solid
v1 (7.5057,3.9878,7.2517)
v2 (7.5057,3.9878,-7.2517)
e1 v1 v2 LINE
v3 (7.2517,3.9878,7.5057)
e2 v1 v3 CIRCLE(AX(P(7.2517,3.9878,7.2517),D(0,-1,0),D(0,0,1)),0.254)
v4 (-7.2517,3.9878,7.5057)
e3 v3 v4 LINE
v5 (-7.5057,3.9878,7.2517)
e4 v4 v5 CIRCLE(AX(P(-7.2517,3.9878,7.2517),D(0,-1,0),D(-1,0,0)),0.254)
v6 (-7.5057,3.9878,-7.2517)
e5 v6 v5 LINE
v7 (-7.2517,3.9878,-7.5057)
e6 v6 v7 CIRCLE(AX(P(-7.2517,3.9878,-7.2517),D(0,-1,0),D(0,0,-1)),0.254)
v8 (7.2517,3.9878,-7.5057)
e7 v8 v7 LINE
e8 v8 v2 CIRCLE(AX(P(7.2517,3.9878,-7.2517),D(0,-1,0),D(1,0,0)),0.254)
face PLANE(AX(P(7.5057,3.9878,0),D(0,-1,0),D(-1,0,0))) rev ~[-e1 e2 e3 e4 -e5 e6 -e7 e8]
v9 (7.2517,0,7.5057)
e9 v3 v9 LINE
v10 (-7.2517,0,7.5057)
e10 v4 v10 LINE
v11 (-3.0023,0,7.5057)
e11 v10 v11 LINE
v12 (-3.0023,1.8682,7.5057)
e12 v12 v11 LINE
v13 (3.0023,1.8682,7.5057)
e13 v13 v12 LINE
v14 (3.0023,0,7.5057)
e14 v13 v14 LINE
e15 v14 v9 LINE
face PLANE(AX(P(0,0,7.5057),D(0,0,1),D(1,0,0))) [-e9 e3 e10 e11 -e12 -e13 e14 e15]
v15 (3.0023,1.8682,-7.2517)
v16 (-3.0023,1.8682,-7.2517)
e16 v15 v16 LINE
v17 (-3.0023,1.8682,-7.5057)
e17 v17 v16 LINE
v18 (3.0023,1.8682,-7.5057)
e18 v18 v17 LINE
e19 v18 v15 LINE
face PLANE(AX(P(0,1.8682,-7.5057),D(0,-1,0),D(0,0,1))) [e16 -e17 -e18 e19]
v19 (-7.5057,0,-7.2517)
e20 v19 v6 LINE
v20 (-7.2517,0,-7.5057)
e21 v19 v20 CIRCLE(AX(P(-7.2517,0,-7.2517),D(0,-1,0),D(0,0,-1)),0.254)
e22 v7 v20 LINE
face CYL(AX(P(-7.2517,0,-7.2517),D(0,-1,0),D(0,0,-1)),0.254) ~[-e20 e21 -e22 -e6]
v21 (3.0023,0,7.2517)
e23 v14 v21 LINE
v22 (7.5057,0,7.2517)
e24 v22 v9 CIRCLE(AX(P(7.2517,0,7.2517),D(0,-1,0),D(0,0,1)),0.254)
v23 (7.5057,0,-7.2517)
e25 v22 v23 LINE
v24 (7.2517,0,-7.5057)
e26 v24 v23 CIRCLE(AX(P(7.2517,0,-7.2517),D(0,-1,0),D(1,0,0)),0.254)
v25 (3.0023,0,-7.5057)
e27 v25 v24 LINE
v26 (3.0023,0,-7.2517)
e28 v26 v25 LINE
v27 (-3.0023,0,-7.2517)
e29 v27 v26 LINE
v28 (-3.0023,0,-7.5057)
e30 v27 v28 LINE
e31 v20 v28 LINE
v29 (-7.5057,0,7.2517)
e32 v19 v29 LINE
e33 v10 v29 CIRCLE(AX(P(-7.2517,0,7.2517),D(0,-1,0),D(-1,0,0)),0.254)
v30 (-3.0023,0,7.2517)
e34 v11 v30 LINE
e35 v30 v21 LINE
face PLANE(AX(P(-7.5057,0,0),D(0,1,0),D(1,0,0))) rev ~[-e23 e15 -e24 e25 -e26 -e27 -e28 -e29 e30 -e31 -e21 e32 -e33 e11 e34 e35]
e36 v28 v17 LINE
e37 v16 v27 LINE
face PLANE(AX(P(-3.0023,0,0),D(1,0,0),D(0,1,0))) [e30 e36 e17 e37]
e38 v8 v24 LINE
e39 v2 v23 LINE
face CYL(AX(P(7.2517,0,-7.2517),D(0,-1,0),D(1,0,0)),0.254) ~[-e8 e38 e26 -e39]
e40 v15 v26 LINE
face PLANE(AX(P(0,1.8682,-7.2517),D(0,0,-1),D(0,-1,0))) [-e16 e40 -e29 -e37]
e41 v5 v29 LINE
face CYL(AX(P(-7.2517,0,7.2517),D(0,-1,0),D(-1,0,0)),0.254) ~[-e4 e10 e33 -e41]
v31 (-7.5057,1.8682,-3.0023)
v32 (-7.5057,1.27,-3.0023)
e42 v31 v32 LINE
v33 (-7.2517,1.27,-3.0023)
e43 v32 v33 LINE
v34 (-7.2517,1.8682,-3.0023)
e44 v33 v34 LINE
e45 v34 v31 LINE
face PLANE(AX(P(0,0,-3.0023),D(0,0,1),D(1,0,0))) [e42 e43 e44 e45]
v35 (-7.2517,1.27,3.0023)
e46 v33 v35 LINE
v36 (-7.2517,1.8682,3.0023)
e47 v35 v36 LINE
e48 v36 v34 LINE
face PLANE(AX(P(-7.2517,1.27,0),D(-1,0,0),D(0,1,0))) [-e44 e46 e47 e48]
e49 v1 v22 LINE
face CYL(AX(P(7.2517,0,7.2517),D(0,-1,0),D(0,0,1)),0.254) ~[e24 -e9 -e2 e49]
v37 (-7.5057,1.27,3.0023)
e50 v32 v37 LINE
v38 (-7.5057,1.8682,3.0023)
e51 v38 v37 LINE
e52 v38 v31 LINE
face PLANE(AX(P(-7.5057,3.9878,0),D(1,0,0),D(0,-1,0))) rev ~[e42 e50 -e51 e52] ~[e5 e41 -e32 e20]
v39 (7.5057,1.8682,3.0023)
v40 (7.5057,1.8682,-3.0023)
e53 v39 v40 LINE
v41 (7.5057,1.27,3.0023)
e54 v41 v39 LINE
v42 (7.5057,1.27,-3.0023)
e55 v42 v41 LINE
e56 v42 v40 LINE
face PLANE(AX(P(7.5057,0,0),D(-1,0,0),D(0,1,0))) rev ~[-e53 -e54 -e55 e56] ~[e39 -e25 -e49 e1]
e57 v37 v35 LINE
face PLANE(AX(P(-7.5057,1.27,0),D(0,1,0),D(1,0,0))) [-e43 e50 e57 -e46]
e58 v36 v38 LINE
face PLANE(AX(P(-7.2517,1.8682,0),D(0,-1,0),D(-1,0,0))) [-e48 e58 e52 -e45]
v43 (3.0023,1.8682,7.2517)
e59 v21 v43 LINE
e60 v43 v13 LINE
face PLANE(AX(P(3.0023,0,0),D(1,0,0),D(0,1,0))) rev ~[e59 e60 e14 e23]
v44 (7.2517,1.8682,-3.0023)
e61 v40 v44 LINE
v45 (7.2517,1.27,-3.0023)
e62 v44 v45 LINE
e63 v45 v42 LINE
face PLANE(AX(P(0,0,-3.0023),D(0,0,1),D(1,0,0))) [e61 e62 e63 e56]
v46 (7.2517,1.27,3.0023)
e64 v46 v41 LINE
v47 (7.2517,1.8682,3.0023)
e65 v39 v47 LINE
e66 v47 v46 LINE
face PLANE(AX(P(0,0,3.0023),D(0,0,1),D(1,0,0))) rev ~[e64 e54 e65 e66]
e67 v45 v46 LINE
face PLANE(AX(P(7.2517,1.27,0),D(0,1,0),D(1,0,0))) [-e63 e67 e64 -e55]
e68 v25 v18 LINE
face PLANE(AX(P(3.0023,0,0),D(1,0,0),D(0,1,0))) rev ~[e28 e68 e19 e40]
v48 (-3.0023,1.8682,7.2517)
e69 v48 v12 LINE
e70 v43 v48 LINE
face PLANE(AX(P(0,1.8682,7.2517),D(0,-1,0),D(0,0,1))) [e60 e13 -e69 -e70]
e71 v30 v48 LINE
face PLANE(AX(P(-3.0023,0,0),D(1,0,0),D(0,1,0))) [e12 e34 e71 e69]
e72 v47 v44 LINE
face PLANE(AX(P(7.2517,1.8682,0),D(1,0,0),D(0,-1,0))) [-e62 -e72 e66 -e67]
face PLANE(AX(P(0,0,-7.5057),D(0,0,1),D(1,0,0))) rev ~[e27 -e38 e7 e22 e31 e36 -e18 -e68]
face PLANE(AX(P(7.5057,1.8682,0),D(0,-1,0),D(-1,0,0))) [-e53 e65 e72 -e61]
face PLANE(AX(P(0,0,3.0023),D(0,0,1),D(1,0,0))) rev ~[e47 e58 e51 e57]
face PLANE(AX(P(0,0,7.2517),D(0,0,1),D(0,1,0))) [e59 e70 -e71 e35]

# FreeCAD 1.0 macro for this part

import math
import FreeCAD as App
import Part
import Sketcher
Q = App.Units.Quantity

doc = App.newDocument("Part")
body = doc.addObject("PartDesign::Body", "Body")

# Sketch on XY plane
sketch1 = doc.addObject("Sketcher::SketchObject", "Sketch")
body.addObject(sketch1)
sketch1.AttachmentSupport = (doc.XY_Plane, [""])
sketch1.MapMode = "FlatFace"
sketch1.addGeometry([
    Part.LineSegment(App.Vector(7.5, 4, 0), App.Vector(-7.5, 4, 0)),
    Part.LineSegment(App.Vector(-7.5, 4, 0), App.Vector(-7.5, 0, 0)),
    Part.LineSegment(App.Vector(-7.5, 0, 0), App.Vector(7.5, 0, 0)),
    Part.LineSegment(App.Vector(7.5, 0, 0), App.Vector(7.5, 4, 0)),
], False)
sketch1.addConstraint([
    Sketcher.Constraint("Coincident", 0, 2, 1, 1),
    Sketcher.Constraint("Coincident", 1, 2, 2, 1),
    Sketcher.Constraint("Coincident", 2, 2, 3, 1),
    Sketcher.Constraint("Coincident", 3, 2, 0, 1),
    Sketcher.Constraint("Horizontal", 0),
    Sketcher.Constraint("Vertical", 1),
    Sketcher.Constraint("Horizontal", 2),
    Sketcher.Constraint("Vertical", 3),
    Sketcher.Constraint("Symmetric", 1, 2, 2, 2, -1, 1),
    Sketcher.Constraint("DistanceX", 0, 2, 0, 1, Q("0.591 in")),
    Sketcher.Constraint("DistanceY", 1, 2, 1, 1, Q("0.157 in")),
])
pad1 = doc.addObject("PartDesign::Pad", "Pad")
body.addObject(pad1)
pad1.Profile = sketch1
pad1.Length = Q("0.591 in")
pad1.Midplane = True

# Sketch on XY plane
sketch2 = doc.addObject("Sketcher::SketchObject", "Sketch001")
body.addObject(sketch2)
sketch2.AttachmentSupport = (doc.XY_Plane, [""])
sketch2.MapMode = "FlatFace"
sketch2.addGeometry([
    Part.LineSegment(App.Vector(-7.51, 1.87, 0), App.Vector(-7.51, 1.27, 0)),
    Part.LineSegment(App.Vector(-7.51, 1.27, 0), App.Vector(-7.25, 1.27, 0)),
    Part.LineSegment(App.Vector(-7.25, 1.27, 0), App.Vector(-7.25, 1.87, 0)),
    Part.LineSegment(App.Vector(-7.25, 1.87, 0), App.Vector(-7.51, 1.87, 0)),
], False)
sketch2.addConstraint([
    Sketcher.Constraint("Coincident", 0, 2, 1, 1),
    Sketcher.Constraint("Coincident", 1, 2, 2, 1),
    Sketcher.Constraint("Coincident", 2, 2, 3, 1),
    Sketcher.Constraint("Coincident", 3, 2, 0, 1),
    Sketcher.Constraint("Vertical", 0),
    Sketcher.Constraint("Horizontal", 1),
    Sketcher.Constraint("Vertical", 2),
    Sketcher.Constraint("Horizontal", 3),
    Sketcher.Constraint("DistanceX", 1, 1, 1, 2, Q("0.01 in")),
    Sketcher.Constraint("DistanceY", -1, 1, 0, 2, Q("0.05 in")),
    Sketcher.Constraint("DistanceY", 0, 2, 0, 1, Q("0.5982 mm")),
    Sketcher.Constraint("DistanceX", 0, 2, -1, 1, Q("0.2955 in")),
])
pocket1 = doc.addObject("PartDesign::Pocket", "Pocket")
body.addObject(pocket1)
pocket1.Profile = sketch2
pocket1.Length = Q("0.2364016 in")
pocket1.Midplane = True

# Sketch on XY plane
sketch3 = doc.addObject("Sketcher::SketchObject", "Sketch002")
body.addObject(sketch3)
sketch3.AttachmentSupport = (doc.XY_Plane, [""])
sketch3.MapMode = "FlatFace"
sketch3.addGeometry([
    Part.LineSegment(App.Vector(7.25, 1.87, 0), App.Vector(7.25, 1.27, 0)),
    Part.LineSegment(App.Vector(7.25, 1.27, 0), App.Vector(7.51, 1.27, 0)),
    Part.LineSegment(App.Vector(7.51, 1.27, 0), App.Vector(7.51, 1.87, 0)),
    Part.LineSegment(App.Vector(7.51, 1.87, 0), App.Vector(7.25, 1.87, 0)),
], False)
sketch3.addConstraint([
    Sketcher.Constraint("Coincident", 0, 2, 1, 1),
    Sketcher.Constraint("Coincident", 1, 2, 2, 1),
    Sketcher.Constraint("Coincident", 2, 2, 3, 1),
    Sketcher.Constraint("Coincident", 3, 2, 0, 1),
    Sketcher.Constraint("Vertical", 0),
    Sketcher.Constraint("Horizontal", 1),
    Sketcher.Constraint("Vertical", 2),
    Sketcher.Constraint("Horizontal", 3),
    Sketcher.Constraint("DistanceX", 1, 1, 1, 2, Q("0.01 in")),
    Sketcher.Constraint("DistanceY", -1, 1, 0, 2, Q("0.05 in")),
    Sketcher.Constraint("DistanceY", 0, 2, 0, 1, Q("0.5982 mm")),
    Sketcher.Constraint("DistanceX", -1, 1, 0, 2, Q("0.2855 in")),
])
pocket2 = doc.addObject("PartDesign::Pocket", "Pocket001")
body.addObject(pocket2)
pocket2.Profile = sketch3
pocket2.Length = Q("0.2364016 in")
pocket2.Midplane = True

# Sketch on YZ plane
sketch4 = doc.addObject("Sketcher::SketchObject", "Sketch003")
body.addObject(sketch4)
sketch4.AttachmentSupport = (doc.YZ_Plane, [""])
sketch4.MapMode = "FlatFace"
sketch4.addGeometry([
    Part.LineSegment(App.Vector(1.87, 7.51, 0), App.Vector(0, 7.51, 0)),
    Part.LineSegment(App.Vector(0, 7.51, 0), App.Vector(0, 7.25, 0)),
    Part.LineSegment(App.Vector(0, 7.25, 0), App.Vector(1.87, 7.25, 0)),
    Part.LineSegment(App.Vector(1.87, 7.25, 0), App.Vector(1.87, 7.51, 0)),
], False)
sketch4.addConstraint([
    Sketcher.Constraint("Coincident", 0, 2, 1, 1),
    Sketcher.Constraint("Coincident", 1, 2, 2, 1),
    Sketcher.Constraint("Coincident", 2, 2, 3, 1),
    Sketcher.Constraint("Coincident", 3, 2, 0, 1),
    Sketcher.Constraint("Horizontal", 0),
    Sketcher.Constraint("Vertical", 1),
    Sketcher.Constraint("Horizontal", 2),
    Sketcher.Constraint("Vertical", 3),
    Sketcher.Constraint("PointOnObject", 0, 2, -2),
    Sketcher.Constraint("DistanceY", 1, 2, 1, 1, Q("0.01 in")),
    Sketcher.Constraint("DistanceX", 0, 2, 0, 1, Q("1.8682 mm")),
    Sketcher.Constraint("DistanceY", -1, 1, 0, 2, Q("0.2955 in")),
])
pocket3 = doc.addObject("PartDesign::Pocket", "Pocket002")
body.addObject(pocket3)
pocket3.Profile = sketch4
pocket3.Length = Q("0.2364016 in")
pocket3.Midplane = True

# Sketch on YZ plane
sketch5 = doc.addObject("Sketcher::SketchObject", "Sketch004")
body.addObject(sketch5)
sketch5.AttachmentSupport = (doc.YZ_Plane, [""])
sketch5.MapMode = "FlatFace"
sketch5.addGeometry([
    Part.LineSegment(App.Vector(1.87, -7.25, 0), App.Vector(0, -7.25, 0)),
    Part.LineSegment(App.Vector(0, -7.25, 0), App.Vector(0, -7.51, 0)),
    Part.LineSegment(App.Vector(0, -7.51, 0), App.Vector(1.87, -7.51, 0)),
    Part.LineSegment(App.Vector(1.87, -7.51, 0), App.Vector(1.87, -7.25, 0)),
], False)
sketch5.addConstraint([
    Sketcher.Constraint("Coincident", 0, 2, 1, 1),
    Sketcher.Constraint("Coincident", 1, 2, 2, 1),
    Sketcher.Constraint("Coincident", 2, 2, 3, 1),
    Sketcher.Constraint("Coincident", 3, 2, 0, 1),
    Sketcher.Constraint("Horizontal", 0),
    Sketcher.Constraint("Vertical", 1),
    Sketcher.Constraint("Horizontal", 2),
    Sketcher.Constraint("Vertical", 3),
    Sketcher.Constraint("PointOnObject", 0, 2, -2),
    Sketcher.Constraint("DistanceY", 1, 2, 1, 1, Q("0.01 in")),
    Sketcher.Constraint("DistanceX", 0, 2, 0, 1, Q("1.8682 mm")),
    Sketcher.Constraint("DistanceY", 0, 2, -1, 1, Q("0.2855 in")),
])
pocket4 = doc.addObject("PartDesign::Pocket", "Pocket003")
body.addObject(pocket4)
pocket4.Profile = sketch5
pocket4.Length = Q("0.2364016 in")
pocket4.Midplane = True

# Sketch on XZ plane
sketch6 = doc.addObject("Sketcher::SketchObject", "Sketch005")
body.addObject(sketch6)
sketch6.AttachmentSupport = (doc.XZ_Plane, [""])
sketch6.MapMode = "FlatFace"
sketch6.addGeometry([
    Part.LineSegment(App.Vector(-8.26, -8.26, 0), App.Vector(-8.26, 8.26, 0)),  # 0
    Part.LineSegment(App.Vector(-8.26, 8.26, 0), App.Vector(8.26, 8.26, 0)),  # 1
    Part.LineSegment(App.Vector(8.26, 8.26, 0), App.Vector(8.26, -8.26, 0)),  # 2
    Part.LineSegment(App.Vector(8.26, -8.26, 0), App.Vector(-8.26, -8.26, 0)),  # 3
    Part.LineSegment(App.Vector(-7.51, 7.25, 0), App.Vector(-7.51, -7.25, 0)),  # 4
    Part.ArcOfCircle(Part.Circle(App.Vector(-7.25, -7.25, 0), App.Vector(0, 0, 1), 0.25), math.radians(180), math.radians(270)),  # 5
    Part.LineSegment(App.Vector(-7.25, -7.51, 0), App.Vector(7.25, -7.51, 0)),  # 6
    Part.ArcOfCircle(Part.Circle(App.Vector(7.25, -7.25, 0), App.Vector(0, 0, 1), 0.25), math.radians(-90), math.radians(0)),  # 7
    Part.LineSegment(App.Vector(7.51, -7.25, 0), App.Vector(7.51, 7.25, 0)),  # 8
    Part.ArcOfCircle(Part.Circle(App.Vector(7.25, 7.25, 0), App.Vector(0, 0, 1), 0.25), math.radians(0), math.radians(90)),  # 9
    Part.LineSegment(App.Vector(7.25, 7.51, 0), App.Vector(-7.25, 7.51, 0)),  # 10
    Part.ArcOfCircle(Part.Circle(App.Vector(-7.25, 7.25, 0), App.Vector(0, 0, 1), 0.25), math.radians(90), math.radians(180)),  # 11
], False)
sketch6.addConstraint([
    Sketcher.Constraint("Coincident", 0, 2, 1, 1),
    Sketcher.Constraint("Coincident", 1, 2, 2, 1),
    Sketcher.Constraint("Coincident", 2, 2, 3, 1),
    Sketcher.Constraint("Coincident", 3, 2, 0, 1),
    Sketcher.Constraint("Tangent", 4, 2, 5, 1),
    Sketcher.Constraint("Tangent", 5, 2, 6, 1),
    Sketcher.Constraint("Tangent", 6, 2, 7, 1),
    Sketcher.Constraint("Tangent", 7, 2, 8, 1),
    Sketcher.Constraint("Tangent", 8, 2, 9, 1),
    Sketcher.Constraint("Tangent", 9, 2, 10, 1),
    Sketcher.Constraint("Tangent", 10, 2, 11, 1),
    Sketcher.Constraint("Tangent", 11, 2, 4, 1),
    Sketcher.Constraint("Vertical", 0),
    Sketcher.Constraint("Horizontal", 1),
    Sketcher.Constraint("Vertical", 2),
    Sketcher.Constraint("Horizontal", 3),
    Sketcher.Constraint("Vertical", 4),
    Sketcher.Constraint("Horizontal", 6),
    Sketcher.Constraint("Vertical", 8),
    Sketcher.Constraint("Horizontal", 10),
    Sketcher.Constraint("Equal", 5, 7),
    Sketcher.Constraint("Equal", 7, 9),
    Sketcher.Constraint("Equal", 9, 11),
    Sketcher.Constraint("Symmetric", 5, 3, 9, 3, -1, 1),
    Sketcher.Constraint("Symmetric", 0, 2, 2, 2, -1, 1),
    Sketcher.Constraint("Equal", 3, 0),
    Sketcher.Constraint("Equal", 10, 4),
    Sketcher.Constraint("Radius", 5, Q("0.01 in")),
    Sketcher.Constraint("DistanceX", 6, 1, 6, 2, Q("0.571 in")),
    Sketcher.Constraint("DistanceX", 1, 1, 1, 2, Q("0.6501 in")),
])
pocket5 = doc.addObject("PartDesign::Pocket", "Pocket004")
body.addObject(pocket5)
pocket5.Profile = sketch6
pocket5.Length = Q("0.414 in")
pocket5.Midplane = True

doc.recompute()
